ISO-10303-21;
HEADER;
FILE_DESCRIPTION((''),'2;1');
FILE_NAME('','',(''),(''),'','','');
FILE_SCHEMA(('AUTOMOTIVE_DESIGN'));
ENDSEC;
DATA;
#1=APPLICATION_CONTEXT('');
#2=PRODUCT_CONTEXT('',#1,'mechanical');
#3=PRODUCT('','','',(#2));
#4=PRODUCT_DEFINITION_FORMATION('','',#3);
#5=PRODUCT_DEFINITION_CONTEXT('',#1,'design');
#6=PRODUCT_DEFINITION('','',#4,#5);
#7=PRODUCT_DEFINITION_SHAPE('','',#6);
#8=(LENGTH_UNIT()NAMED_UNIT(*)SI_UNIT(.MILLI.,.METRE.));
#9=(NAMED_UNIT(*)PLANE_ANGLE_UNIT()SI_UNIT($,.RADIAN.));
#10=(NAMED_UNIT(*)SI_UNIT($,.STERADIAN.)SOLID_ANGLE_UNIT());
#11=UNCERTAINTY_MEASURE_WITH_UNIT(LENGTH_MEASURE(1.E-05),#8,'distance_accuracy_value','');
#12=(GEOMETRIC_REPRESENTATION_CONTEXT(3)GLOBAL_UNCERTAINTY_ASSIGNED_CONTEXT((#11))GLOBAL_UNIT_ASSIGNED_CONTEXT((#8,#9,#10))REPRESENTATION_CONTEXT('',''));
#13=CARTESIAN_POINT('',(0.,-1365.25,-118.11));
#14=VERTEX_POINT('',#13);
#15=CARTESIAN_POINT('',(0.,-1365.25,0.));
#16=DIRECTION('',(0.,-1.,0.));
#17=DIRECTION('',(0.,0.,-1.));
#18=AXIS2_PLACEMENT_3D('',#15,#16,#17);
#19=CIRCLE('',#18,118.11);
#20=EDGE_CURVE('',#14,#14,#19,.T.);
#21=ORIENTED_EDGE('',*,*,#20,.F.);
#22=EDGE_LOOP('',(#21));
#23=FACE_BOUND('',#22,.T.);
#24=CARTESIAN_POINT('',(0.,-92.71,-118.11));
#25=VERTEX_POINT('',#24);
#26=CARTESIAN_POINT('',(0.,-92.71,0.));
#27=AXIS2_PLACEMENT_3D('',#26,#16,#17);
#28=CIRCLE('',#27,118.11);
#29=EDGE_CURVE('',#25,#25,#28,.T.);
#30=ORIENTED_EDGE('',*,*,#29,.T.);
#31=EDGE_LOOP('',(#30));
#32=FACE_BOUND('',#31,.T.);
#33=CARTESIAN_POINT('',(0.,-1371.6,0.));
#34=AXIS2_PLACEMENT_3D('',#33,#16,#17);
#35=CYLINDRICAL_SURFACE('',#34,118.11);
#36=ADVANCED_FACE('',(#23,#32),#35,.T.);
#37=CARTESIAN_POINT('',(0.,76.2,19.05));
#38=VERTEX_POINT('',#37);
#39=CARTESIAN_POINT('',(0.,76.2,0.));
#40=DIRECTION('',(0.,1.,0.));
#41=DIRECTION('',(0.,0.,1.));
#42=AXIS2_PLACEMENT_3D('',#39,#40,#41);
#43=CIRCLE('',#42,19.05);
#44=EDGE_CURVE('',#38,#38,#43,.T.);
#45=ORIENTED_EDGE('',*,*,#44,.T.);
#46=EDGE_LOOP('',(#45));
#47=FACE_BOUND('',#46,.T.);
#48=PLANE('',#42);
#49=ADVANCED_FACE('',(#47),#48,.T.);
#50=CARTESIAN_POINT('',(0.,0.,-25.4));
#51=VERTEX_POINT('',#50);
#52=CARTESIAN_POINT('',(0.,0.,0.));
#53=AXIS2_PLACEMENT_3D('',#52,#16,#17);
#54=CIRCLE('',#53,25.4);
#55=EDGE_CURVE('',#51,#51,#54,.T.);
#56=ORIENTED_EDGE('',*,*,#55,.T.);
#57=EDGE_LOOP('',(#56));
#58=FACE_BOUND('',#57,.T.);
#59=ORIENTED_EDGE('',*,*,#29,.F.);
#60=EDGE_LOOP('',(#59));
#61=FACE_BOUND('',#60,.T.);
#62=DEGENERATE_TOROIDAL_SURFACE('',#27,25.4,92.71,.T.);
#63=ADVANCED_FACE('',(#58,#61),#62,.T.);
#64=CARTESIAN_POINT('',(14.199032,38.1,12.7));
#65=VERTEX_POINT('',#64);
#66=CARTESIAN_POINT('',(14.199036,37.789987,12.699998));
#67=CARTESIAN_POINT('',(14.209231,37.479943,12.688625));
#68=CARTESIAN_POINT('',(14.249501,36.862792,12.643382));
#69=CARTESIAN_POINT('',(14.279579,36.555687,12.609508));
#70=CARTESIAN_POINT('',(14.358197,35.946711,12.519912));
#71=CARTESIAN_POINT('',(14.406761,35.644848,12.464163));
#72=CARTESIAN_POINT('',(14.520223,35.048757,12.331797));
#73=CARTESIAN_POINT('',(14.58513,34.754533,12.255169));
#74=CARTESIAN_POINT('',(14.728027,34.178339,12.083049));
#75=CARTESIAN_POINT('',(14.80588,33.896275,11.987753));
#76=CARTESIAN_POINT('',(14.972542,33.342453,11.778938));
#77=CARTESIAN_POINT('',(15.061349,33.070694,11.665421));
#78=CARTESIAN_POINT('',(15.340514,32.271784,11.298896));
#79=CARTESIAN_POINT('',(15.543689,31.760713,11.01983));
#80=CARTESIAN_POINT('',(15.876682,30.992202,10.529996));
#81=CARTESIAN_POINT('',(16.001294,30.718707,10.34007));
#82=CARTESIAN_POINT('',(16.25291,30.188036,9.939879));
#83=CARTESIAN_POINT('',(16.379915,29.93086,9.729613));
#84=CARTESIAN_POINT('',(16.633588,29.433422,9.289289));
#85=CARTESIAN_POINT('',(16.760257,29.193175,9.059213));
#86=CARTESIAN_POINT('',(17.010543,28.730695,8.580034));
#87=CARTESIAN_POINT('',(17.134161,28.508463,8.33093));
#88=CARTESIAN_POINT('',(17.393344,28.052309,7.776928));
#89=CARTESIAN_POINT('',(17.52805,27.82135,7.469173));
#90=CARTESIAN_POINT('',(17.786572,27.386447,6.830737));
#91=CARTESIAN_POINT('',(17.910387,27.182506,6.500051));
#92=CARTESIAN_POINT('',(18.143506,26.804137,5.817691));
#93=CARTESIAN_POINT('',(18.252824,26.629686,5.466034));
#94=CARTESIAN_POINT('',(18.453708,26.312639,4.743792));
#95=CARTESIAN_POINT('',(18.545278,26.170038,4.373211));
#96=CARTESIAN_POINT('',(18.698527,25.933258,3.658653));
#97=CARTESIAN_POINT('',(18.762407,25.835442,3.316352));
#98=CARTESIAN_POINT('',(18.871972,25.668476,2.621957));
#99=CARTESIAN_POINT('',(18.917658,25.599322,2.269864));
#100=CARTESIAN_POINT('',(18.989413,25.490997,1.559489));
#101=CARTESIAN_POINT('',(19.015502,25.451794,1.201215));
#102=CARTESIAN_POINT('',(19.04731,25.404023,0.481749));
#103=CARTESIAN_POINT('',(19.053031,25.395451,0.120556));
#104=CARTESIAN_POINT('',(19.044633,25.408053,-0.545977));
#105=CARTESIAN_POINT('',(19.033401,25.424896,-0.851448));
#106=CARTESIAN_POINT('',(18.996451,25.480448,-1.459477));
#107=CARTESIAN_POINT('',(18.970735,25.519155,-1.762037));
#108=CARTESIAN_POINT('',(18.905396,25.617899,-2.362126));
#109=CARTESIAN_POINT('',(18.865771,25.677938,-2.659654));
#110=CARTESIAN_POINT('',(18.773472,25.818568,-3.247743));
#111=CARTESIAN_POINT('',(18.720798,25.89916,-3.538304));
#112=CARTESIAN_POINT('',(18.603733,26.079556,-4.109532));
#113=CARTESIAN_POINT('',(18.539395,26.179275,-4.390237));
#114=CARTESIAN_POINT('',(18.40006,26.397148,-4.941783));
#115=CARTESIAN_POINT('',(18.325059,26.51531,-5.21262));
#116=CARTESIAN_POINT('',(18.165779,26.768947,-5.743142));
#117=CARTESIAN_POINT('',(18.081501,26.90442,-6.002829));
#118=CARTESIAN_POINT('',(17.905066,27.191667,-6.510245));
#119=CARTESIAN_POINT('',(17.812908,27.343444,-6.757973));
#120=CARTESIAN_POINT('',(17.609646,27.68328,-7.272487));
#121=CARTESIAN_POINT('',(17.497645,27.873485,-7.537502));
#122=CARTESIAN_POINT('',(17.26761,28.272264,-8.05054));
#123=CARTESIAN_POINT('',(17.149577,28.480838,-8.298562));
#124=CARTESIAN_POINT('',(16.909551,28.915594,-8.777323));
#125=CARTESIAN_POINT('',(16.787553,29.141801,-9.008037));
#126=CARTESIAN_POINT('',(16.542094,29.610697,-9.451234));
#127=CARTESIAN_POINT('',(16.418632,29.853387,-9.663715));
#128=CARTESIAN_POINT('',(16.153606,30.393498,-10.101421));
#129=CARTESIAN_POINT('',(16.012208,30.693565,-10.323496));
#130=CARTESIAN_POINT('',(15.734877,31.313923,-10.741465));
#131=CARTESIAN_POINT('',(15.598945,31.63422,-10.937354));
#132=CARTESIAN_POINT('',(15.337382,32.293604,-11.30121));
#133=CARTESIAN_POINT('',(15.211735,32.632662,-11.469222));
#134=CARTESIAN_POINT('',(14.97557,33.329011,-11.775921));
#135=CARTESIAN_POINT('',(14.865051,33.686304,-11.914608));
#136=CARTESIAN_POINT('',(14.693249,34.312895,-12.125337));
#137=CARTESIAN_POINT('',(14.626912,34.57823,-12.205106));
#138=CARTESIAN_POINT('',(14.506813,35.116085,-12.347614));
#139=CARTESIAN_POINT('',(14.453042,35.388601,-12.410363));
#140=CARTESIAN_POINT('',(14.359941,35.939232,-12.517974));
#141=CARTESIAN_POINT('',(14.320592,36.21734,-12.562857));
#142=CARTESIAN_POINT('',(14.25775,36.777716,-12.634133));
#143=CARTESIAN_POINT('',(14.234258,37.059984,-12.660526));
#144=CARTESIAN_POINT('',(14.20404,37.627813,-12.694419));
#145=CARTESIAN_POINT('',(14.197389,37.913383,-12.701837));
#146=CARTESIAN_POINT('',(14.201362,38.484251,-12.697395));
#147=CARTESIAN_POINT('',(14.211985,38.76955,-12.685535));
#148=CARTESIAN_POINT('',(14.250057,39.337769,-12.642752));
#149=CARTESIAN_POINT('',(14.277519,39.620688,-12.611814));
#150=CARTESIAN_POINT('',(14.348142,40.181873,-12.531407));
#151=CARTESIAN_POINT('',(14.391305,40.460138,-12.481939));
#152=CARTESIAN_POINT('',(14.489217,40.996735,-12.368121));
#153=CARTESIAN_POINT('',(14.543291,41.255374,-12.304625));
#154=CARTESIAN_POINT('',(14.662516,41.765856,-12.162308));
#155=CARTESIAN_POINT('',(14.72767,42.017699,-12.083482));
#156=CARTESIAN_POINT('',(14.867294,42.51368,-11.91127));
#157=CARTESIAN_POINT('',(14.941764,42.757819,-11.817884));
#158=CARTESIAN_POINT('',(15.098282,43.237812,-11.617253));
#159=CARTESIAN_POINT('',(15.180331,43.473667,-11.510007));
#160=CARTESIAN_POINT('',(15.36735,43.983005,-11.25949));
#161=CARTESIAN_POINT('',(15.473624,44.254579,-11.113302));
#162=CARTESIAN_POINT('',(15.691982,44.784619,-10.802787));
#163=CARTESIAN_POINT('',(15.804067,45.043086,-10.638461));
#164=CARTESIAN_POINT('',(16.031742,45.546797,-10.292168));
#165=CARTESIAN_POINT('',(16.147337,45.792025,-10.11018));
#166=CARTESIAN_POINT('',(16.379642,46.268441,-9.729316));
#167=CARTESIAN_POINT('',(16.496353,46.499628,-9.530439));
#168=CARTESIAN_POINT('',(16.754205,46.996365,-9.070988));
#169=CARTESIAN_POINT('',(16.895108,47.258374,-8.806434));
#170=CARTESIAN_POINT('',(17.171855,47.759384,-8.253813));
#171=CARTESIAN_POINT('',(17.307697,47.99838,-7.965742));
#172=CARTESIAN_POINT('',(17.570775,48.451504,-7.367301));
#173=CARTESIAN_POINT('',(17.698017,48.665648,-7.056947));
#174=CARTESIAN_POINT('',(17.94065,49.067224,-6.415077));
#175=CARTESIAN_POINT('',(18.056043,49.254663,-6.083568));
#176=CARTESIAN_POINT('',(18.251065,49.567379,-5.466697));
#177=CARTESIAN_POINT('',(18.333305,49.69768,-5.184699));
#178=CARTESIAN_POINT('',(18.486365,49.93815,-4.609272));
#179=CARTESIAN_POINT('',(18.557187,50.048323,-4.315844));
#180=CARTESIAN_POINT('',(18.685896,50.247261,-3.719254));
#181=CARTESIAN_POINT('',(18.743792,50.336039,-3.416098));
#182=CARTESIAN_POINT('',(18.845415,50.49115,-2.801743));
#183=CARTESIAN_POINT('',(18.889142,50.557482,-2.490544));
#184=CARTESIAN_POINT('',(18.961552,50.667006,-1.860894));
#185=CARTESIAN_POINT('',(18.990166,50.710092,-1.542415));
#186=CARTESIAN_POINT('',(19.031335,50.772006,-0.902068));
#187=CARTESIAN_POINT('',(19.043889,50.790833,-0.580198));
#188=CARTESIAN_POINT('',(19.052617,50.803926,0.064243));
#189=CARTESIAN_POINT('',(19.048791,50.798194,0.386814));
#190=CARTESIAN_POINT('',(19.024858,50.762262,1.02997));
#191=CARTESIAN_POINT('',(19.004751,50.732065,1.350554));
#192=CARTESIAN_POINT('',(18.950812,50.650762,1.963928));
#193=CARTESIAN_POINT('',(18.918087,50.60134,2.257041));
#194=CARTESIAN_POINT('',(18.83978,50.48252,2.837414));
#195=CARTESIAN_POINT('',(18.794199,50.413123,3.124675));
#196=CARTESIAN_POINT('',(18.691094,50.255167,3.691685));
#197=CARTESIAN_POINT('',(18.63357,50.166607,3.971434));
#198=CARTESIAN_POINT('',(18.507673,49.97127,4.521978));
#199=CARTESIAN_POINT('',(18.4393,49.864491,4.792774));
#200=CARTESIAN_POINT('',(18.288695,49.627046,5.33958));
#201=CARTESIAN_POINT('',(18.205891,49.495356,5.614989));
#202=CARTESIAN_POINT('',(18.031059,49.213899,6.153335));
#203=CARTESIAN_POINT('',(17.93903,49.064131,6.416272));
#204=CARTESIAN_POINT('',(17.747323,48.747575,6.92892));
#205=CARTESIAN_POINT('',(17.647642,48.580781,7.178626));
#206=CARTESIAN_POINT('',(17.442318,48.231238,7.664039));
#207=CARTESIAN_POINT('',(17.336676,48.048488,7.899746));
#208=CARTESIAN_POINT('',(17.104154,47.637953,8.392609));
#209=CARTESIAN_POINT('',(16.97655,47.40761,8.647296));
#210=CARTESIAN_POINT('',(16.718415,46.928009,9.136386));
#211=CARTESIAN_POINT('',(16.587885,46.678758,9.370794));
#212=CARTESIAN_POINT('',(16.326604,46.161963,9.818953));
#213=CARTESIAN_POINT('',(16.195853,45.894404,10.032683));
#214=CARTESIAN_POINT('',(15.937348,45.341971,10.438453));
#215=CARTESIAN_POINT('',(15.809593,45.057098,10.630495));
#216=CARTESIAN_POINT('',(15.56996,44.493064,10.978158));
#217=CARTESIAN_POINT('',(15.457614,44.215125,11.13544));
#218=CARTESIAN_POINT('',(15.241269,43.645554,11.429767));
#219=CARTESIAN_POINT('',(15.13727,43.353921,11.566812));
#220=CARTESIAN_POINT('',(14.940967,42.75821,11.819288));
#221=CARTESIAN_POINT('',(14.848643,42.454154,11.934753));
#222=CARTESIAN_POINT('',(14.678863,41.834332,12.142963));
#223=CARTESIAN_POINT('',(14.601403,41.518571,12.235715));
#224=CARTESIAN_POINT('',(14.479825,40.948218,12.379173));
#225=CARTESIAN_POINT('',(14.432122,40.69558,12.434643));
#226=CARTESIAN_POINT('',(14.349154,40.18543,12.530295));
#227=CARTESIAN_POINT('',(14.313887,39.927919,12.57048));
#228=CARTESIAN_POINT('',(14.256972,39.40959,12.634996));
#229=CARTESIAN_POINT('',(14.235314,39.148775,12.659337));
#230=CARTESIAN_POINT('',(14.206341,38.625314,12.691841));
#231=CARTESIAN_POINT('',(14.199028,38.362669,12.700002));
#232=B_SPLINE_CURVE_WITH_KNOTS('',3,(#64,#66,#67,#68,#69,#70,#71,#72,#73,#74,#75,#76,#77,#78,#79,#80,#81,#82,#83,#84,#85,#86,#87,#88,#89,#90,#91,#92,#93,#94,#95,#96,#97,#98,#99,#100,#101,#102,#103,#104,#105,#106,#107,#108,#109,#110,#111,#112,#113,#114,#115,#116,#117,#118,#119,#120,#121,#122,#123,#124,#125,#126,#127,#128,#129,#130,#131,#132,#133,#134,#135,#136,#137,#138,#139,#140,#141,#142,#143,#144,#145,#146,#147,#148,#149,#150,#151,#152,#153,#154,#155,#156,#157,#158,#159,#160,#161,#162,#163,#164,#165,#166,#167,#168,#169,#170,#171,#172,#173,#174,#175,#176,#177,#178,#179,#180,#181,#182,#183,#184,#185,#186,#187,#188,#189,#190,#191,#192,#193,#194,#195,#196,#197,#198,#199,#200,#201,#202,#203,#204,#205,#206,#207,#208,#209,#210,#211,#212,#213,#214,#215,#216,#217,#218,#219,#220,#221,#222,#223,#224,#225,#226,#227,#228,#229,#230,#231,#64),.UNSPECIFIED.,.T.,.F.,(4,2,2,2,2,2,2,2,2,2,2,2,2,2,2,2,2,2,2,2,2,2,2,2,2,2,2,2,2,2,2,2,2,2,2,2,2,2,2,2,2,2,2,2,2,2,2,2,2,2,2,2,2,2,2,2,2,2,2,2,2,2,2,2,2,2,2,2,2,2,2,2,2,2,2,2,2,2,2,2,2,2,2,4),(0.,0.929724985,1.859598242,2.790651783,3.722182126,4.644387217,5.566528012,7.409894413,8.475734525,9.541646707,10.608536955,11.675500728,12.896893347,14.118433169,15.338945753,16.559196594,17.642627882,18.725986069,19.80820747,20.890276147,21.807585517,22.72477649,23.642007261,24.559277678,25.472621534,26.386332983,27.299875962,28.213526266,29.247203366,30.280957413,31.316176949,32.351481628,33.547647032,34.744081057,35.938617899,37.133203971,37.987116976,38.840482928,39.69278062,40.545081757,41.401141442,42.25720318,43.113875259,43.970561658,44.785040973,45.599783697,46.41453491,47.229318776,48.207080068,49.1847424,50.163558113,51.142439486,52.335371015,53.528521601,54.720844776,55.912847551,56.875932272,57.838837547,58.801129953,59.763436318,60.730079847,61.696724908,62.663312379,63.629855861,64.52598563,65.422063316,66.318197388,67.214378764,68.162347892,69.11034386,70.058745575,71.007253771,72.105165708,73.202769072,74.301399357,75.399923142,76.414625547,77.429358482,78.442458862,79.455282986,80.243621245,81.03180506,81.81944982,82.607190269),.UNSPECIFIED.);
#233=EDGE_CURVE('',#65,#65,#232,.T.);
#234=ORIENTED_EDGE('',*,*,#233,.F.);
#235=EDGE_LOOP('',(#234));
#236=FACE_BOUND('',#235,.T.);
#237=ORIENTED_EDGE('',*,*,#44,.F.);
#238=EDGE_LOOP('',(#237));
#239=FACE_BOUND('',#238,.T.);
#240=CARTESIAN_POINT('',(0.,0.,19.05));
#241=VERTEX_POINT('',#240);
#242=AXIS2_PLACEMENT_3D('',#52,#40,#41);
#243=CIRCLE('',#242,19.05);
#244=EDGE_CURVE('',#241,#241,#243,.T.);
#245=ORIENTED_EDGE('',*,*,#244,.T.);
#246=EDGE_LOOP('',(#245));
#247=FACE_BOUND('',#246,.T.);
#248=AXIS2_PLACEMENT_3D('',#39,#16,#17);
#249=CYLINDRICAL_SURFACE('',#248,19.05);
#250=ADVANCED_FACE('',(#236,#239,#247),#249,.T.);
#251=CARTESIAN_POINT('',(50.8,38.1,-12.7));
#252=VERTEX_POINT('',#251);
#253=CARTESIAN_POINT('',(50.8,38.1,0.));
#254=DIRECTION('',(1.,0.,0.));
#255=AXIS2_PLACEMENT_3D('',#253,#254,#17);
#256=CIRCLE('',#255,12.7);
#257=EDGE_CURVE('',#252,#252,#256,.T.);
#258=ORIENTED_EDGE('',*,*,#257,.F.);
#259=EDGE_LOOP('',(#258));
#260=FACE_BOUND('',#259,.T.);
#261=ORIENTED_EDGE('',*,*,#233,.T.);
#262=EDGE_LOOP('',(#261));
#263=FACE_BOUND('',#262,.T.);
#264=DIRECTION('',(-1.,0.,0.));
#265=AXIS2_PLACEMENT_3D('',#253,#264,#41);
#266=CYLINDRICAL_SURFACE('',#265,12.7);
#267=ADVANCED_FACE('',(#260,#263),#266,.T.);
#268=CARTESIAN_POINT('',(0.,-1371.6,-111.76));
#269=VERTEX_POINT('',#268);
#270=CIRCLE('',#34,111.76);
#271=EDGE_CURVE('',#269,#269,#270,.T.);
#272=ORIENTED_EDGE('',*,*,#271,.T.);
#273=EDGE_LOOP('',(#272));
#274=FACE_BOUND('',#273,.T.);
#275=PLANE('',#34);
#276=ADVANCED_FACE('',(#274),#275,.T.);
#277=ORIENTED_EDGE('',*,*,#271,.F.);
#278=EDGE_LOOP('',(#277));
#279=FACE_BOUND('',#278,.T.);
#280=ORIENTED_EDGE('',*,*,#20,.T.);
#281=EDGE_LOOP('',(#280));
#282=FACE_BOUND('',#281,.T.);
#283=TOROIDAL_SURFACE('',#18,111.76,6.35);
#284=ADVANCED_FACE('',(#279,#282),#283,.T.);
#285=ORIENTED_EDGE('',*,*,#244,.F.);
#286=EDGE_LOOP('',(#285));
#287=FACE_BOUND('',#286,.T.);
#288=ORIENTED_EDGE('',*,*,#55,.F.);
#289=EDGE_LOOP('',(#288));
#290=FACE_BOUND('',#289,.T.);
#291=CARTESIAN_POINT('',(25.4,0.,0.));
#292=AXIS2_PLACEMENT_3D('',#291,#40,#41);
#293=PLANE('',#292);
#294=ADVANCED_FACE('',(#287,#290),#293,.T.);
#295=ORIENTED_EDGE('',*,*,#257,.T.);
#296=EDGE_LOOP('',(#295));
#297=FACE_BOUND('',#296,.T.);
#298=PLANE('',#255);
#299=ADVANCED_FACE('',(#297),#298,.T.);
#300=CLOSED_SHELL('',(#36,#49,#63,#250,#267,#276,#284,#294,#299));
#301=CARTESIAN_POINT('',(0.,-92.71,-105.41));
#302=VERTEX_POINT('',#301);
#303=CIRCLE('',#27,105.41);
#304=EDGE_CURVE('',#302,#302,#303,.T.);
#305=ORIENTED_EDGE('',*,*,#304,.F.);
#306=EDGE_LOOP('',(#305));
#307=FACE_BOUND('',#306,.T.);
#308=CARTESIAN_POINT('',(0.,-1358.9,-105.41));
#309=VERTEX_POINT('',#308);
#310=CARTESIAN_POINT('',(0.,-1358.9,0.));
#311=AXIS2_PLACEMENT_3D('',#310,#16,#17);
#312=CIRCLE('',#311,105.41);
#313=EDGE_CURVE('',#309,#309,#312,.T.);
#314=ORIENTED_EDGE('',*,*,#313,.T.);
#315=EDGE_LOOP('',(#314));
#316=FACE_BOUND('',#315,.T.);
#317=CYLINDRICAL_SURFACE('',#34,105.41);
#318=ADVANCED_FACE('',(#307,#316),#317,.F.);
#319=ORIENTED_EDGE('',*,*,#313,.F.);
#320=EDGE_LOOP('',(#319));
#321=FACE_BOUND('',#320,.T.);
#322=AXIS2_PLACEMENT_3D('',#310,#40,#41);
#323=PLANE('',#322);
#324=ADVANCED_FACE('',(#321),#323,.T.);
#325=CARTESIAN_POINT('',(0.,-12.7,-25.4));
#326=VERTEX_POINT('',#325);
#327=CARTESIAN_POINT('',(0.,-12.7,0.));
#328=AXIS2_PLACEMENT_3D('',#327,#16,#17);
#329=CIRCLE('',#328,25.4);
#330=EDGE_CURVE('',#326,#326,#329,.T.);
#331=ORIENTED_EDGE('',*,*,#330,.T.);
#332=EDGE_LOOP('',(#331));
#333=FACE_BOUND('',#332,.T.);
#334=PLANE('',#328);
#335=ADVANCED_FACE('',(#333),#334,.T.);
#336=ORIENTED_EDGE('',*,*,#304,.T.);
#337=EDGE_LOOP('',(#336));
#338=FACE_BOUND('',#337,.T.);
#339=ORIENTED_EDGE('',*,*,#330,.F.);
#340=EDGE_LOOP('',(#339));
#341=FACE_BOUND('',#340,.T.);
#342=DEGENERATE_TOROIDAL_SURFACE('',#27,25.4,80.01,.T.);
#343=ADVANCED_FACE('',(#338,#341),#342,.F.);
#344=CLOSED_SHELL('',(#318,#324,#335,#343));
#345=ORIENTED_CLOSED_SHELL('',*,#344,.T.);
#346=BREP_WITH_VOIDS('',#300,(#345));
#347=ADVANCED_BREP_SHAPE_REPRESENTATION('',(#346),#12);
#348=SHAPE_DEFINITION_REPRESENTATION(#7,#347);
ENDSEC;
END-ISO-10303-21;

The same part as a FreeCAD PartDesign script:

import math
import FreeCAD as App
import Part
import Sketcher

V = App.Vector
Q = App.Units.Quantity

doc = App.newDocument("Part")
body = doc.addObject("PartDesign::Body", "Body")

# Sketch on XY plane
sketch1 = body.newObject("Sketcher::SketchObject", "Sketch")
sketch1.AttachmentSupport = (doc.getObject("XY_Plane"), [""])
sketch1.MapMode = "FlatFace"
sketch1.addGeometry([
    Part.LineSegment(V(0, -1372, 0), V(112, -1372, 0)),  # 0
    Part.ArcOfCircle(Part.Circle(V(112, -1365, 0), V(0, 0, 1), 6), math.radians(-90), math.radians(0)),  # 1
    Part.LineSegment(V(118, -1365, 0), V(118, -93, 0)),  # 2
    Part.ArcOfCircle(Part.Circle(V(25, -93, 0), V(0, 0, 1), 93), math.radians(0), math.radians(90)),  # 3
    Part.LineSegment(V(25, 0, 0), V(0, 0, 0)),  # 4
    Part.LineSegment(V(0, 0, 0), V(0, -13, 0)),  # 5
    Part.LineSegment(V(0, -13, 0), V(25, -13, 0)),  # 6
    Part.ArcOfCircle(Part.Circle(V(25, -93, 0), V(0, 0, 1), 80), math.radians(0), math.radians(90)),  # 7
    Part.LineSegment(V(105, -93, 0), V(105, -1359, 0)),  # 8
    Part.LineSegment(V(105, -1359, 0), V(0, -1359, 0)),  # 9
    Part.LineSegment(V(0, -1359, 0), V(0, -1372, 0)),  # 10
], False)
sketch1.addConstraint([
    Sketcher.Constraint("Tangent", 0, 2, 1, 1),
    Sketcher.Constraint("Tangent", 1, 2, 2, 1),
    Sketcher.Constraint("Tangent", 2, 2, 3, 1),
    Sketcher.Constraint("Tangent", 3, 2, 4, 1),
    Sketcher.Constraint("Coincident", 4, 2, 5, 1),
    Sketcher.Constraint("Coincident", 5, 2, 6, 1),
    Sketcher.Constraint("Tangent", 6, 2, 7, 2),
    Sketcher.Constraint("Tangent", 7, 1, 8, 1),
    Sketcher.Constraint("Coincident", 8, 2, 9, 1),
    Sketcher.Constraint("Coincident", 9, 2, 10, 1),
    Sketcher.Constraint("Coincident", 10, 2, 0, 1),
    Sketcher.Constraint("Horizontal", 0),
    Sketcher.Constraint("Vertical", 2),
    Sketcher.Constraint("Horizontal", 4),
    Sketcher.Constraint("Vertical", 5),
    Sketcher.Constraint("Horizontal", 6),
    Sketcher.Constraint("Vertical", 8),
    Sketcher.Constraint("Horizontal", 9),
    Sketcher.Constraint("Vertical", 10),
    Sketcher.Constraint("Coincident", 4, 2, -1, 1),
    Sketcher.Constraint("Coincident", 7, 3, 3, 3),
    Sketcher.Constraint("PointOnObject", 9, 2, -2),
    Sketcher.Constraint("Equal", 5, 10),
    Sketcher.Constraint("DistanceX", 4, 2, 4, 1, Q("1 in")),
    Sketcher.Constraint("Radius", 1, Q("0.25 in")),
    Sketcher.Constraint("Radius", 3, Q("3.65 in")),
    Sketcher.Constraint("Radius", 7, Q("3.15 in")),
    Sketcher.Constraint("DistanceY", 2, 1, 2, 2, Q("50.1 in")),
])
revolution = body.newObject("PartDesign::Revolution", "Revolution")
revolution.Profile = sketch1
revolution.ReferenceAxis = (sketch1, ["V_Axis"])
revolution.Angle = 360

# Sketch on XZ plane
sketch2 = body.newObject("Sketcher::SketchObject", "Sketch001")
sketch2.AttachmentSupport = (doc.getObject("XZ_Plane"), [""])
sketch2.MapMode = "FlatFace"
sketch2.addGeometry(Part.Circle(V(0, 0, 0), V(0, 0, 1), 19), False)
sketch2.addConstraint([
    Sketcher.Constraint("Coincident", 0, 3, -1, 1),
    Sketcher.Constraint("Diameter", 0, Q("1.5 in")),
])
pad1 = body.newObject("PartDesign::Pad", "Pad")
pad1.Profile = sketch2
pad1.Length = Q("3 in")
pad1.Reversed = True

# Sketch on YZ plane
sketch3 = body.newObject("Sketcher::SketchObject", "Sketch002")
sketch3.AttachmentSupport = (doc.getObject("YZ_Plane"), [""])
sketch3.MapMode = "FlatFace"
sketch3.addGeometry(Part.Circle(V(38, 0, 0), V(0, 0, 1), 13), False)
sketch3.addConstraint([
    Sketcher.Constraint("PointOnObject", 0, 3, -1),
    Sketcher.Constraint("Diameter", 0, Q("1 in")),
    Sketcher.Constraint("DistanceX", -1, 1, 0, 3, Q("1.5 in")),
])
pad2 = body.newObject("PartDesign::Pad", "Pad001")
pad2.Profile = sketch3
pad2.Length = Q("2 in")

doc.recompute()
